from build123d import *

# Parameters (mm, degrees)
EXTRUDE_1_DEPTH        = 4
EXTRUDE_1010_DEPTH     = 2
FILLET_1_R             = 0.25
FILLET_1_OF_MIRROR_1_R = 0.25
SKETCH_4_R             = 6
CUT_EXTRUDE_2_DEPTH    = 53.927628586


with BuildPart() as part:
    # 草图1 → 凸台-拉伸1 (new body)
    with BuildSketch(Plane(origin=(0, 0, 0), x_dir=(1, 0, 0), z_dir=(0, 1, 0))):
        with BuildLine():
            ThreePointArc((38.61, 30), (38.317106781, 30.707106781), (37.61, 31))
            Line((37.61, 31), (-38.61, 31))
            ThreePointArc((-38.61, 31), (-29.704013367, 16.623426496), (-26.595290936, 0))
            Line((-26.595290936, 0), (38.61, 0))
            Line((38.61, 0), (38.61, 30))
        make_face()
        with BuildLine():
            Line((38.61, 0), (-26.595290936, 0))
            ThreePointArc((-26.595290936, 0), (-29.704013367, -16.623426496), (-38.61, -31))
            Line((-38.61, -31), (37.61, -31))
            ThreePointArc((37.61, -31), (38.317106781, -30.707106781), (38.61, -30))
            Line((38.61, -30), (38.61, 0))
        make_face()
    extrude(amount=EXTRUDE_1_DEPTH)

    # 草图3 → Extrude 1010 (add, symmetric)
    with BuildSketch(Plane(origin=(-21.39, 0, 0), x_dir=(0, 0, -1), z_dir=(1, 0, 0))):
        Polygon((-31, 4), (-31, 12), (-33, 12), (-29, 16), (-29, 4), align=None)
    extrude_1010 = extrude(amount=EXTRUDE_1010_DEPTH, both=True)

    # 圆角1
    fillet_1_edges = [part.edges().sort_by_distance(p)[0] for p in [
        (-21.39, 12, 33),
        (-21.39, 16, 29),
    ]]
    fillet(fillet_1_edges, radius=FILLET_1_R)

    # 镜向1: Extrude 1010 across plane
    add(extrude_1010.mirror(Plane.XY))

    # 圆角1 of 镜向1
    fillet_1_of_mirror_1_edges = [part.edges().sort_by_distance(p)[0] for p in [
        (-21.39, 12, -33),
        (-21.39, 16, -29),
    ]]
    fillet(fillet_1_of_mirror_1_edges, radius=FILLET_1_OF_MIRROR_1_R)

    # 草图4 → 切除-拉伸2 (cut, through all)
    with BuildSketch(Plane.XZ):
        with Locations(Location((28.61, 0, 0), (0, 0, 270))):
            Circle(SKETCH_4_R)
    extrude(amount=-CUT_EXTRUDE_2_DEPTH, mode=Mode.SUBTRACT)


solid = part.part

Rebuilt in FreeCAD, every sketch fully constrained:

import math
import FreeCAD as App
import Part
import Sketcher
from FreeCAD import Vector


def edges_at(feature, points):
    """Names of the edges that pass closest to the given points."""
    edges = feature.Shape.Edges
    near = lambda p: min(range(len(edges)), key=lambda i: edges[i].distToShape(Part.Vertex(*p))[0])
    return sorted({f"Edge{near(p) + 1}" for p in points})

doc = App.newDocument("Part")
body = doc.addObject("PartDesign::Body", "Body")

sketch1 = doc.addObject("Sketcher::SketchObject", "Sketch")
body.addObject(sketch1)
sketch1.AttachmentSupport = (doc.XZ_Plane, [""])
sketch1.MapMode = "FlatFace"
sketch1.addGeometry([
    Part.ArcOfCircle(Part.Circle(Vector(37.6, -30, 0), Vector(0, 0, 1), 1), math.radians(-90), math.radians(0)),
    Part.LineSegment(Vector(37.6, -31, 0), Vector(-38.6, -31, 0)),
    Part.ArcOfCircle(Part.Circle(Vector(-72.6, 0, 0), Vector(0, 0, 1), 46), math.radians(-42), math.radians(0)),
    Part.ArcOfCircle(Part.Circle(Vector(-72.6, 0, 0), Vector(0, 0, 1), 46), math.radians(0), math.radians(42)),
    Part.LineSegment(Vector(-38.6, 31, 0), Vector(37.6, 31, 0)),
    Part.ArcOfCircle(Part.Circle(Vector(37.6, 30, 0), Vector(0, 0, 1), 1), math.radians(0), math.radians(90)),
    Part.LineSegment(Vector(38.6, 30, 0), Vector(38.6, -30, 0)),
], False)
sketch1.addConstraint([
    Sketcher.Constraint("Tangent", 0, 1, 1, 1),
    Sketcher.Constraint("Coincident", 1, 2, 2, 1),
    Sketcher.Constraint("Tangent", 2, 2, 3, 1),
    Sketcher.Constraint("Coincident", 3, 2, 4, 1),
    Sketcher.Constraint("Tangent", 4, 2, 5, 2),
    Sketcher.Constraint("Tangent", 5, 1, 6, 1),
    Sketcher.Constraint("Tangent", 6, 2, 0, 2),
    Sketcher.Constraint("Horizontal", 1),
    Sketcher.Constraint("Horizontal", 4),
    Sketcher.Constraint("Vertical", 6),
    Sketcher.Constraint("Equal", 2, 3),
    Sketcher.Constraint("Equal", 0, 5),
    Sketcher.Constraint("Symmetric", 1, 2, 3, 2, -1),
    Sketcher.Constraint("PointOnObject", 2, 2, -1),
    Sketcher.Constraint("Radius", 0, 1.0),
    Sketcher.Constraint("Radius", 2, 46.0),
    Sketcher.Constraint("DistanceY", 6, 2, 6, 1, 60.0),
    Sketcher.Constraint("DistanceX", 1, 2, 1, 1, 76.22),
    Sketcher.Constraint("DistanceX", -1, 1, 0, 3, 37.61),
])
pad1 = doc.addObject("PartDesign::Pad", "Pad")
body.addObject(pad1)
pad1.Profile = sketch1
pad1.Length = 4
pad1.Reversed = True

sketch2 = doc.addObject("Sketcher::SketchObject", "Sketch001")
body.addObject(sketch2)
sketch2.AttachmentSupport = (doc.YZ_Plane, [""])
sketch2.MapMode = "FlatFace"
sketch2.AttachmentOffset = App.Placement(Vector(0, 0, -21.39), App.Rotation())
sketch2.addGeometry([
    Part.LineSegment(Vector(12, 31, 0), Vector(4, 31, 0)),
    Part.LineSegment(Vector(4, 31, 0), Vector(4, 29, 0)),
    Part.LineSegment(Vector(4, 29, 0), Vector(16, 29, 0)),
    Part.LineSegment(Vector(16, 29, 0), Vector(12, 33, 0)),
    Part.LineSegment(Vector(12, 33, 0), Vector(12, 31, 0)),
], False)
sketch2.addConstraint([
    Sketcher.Constraint("Coincident", 0, 2, 1, 1),
    Sketcher.Constraint("Coincident", 1, 2, 2, 1),
    Sketcher.Constraint("Coincident", 2, 2, 3, 1),
    Sketcher.Constraint("Coincident", 3, 2, 4, 1),
    Sketcher.Constraint("Coincident", 4, 2, 0, 1),
    Sketcher.Constraint("Horizontal", 0),
    Sketcher.Constraint("Vertical", 1),
    Sketcher.Constraint("Horizontal", 2),
    Sketcher.Constraint("Vertical", 4),
    Sketcher.Constraint("Equal", 1, 4),
    Sketcher.Constraint("DistanceX", 0, 2, 0, 1, 8.0),
    Sketcher.Constraint("DistanceX", 2, 1, 2, 2, 12.0),
    Sketcher.Constraint("DistanceY", 1, 2, 1, 1, 2.0),
    Sketcher.Constraint("DistanceX", -1, 1, 0, 2, 4.0),
    Sketcher.Constraint("DistanceY", -1, 1, 0, 2, 31.0),
])
pad2 = doc.addObject("PartDesign::Pad", "Pad001")
body.addObject(pad2)
pad2.Profile = sketch2
pad2.Length = 4
pad2.Midplane = True
doc.recompute()

fillet = doc.addObject("PartDesign::Fillet", "Fillet")
body.addObject(fillet)
fillet.Base = (pad2, edges_at(pad2, [(-21.39, 12, 33), (-21.39, 16, 29)]))
fillet.Radius = 0.25
doc.recompute()

mirrored = doc.addObject("PartDesign::Mirrored", "Mirrored")
body.addObject(mirrored)
mirrored.Originals = [pad2]
mirrored.MirrorPlane = (doc.XY_Plane, [""])
body.Tip = mirrored
doc.recompute()

fillet2 = doc.addObject("PartDesign::Fillet", "Fillet001")
body.addObject(fillet2)
fillet2.Base = (mirrored, edges_at(mirrored, [(-21.39, 12, -33), (-21.39, 16, -29)]))
fillet2.Radius = 0.25

sketch3 = doc.addObject("Sketcher::SketchObject", "Sketch002")
body.addObject(sketch3)
sketch3.AttachmentSupport = (doc.XZ_Plane, [""])
sketch3.MapMode = "FlatFace"
sketch3.addGeometry(Part.Circle(Vector(29, 0, 0), Vector(0, 0, 1), 6), False)
sketch3.addConstraint([
    Sketcher.Constraint("PointOnObject", 0, 3, -1),
    Sketcher.Constraint("Diameter", 0, 12.0),
    Sketcher.Constraint("DistanceX", -1, 1, 0, 3, 28.61),
])
pocket1 = doc.addObject("PartDesign::Pocket", "Pocket")
body.addObject(pocket1)
pocket1.Profile = sketch3
pocket1.Type = "ThroughAll"

doc.recompute()
